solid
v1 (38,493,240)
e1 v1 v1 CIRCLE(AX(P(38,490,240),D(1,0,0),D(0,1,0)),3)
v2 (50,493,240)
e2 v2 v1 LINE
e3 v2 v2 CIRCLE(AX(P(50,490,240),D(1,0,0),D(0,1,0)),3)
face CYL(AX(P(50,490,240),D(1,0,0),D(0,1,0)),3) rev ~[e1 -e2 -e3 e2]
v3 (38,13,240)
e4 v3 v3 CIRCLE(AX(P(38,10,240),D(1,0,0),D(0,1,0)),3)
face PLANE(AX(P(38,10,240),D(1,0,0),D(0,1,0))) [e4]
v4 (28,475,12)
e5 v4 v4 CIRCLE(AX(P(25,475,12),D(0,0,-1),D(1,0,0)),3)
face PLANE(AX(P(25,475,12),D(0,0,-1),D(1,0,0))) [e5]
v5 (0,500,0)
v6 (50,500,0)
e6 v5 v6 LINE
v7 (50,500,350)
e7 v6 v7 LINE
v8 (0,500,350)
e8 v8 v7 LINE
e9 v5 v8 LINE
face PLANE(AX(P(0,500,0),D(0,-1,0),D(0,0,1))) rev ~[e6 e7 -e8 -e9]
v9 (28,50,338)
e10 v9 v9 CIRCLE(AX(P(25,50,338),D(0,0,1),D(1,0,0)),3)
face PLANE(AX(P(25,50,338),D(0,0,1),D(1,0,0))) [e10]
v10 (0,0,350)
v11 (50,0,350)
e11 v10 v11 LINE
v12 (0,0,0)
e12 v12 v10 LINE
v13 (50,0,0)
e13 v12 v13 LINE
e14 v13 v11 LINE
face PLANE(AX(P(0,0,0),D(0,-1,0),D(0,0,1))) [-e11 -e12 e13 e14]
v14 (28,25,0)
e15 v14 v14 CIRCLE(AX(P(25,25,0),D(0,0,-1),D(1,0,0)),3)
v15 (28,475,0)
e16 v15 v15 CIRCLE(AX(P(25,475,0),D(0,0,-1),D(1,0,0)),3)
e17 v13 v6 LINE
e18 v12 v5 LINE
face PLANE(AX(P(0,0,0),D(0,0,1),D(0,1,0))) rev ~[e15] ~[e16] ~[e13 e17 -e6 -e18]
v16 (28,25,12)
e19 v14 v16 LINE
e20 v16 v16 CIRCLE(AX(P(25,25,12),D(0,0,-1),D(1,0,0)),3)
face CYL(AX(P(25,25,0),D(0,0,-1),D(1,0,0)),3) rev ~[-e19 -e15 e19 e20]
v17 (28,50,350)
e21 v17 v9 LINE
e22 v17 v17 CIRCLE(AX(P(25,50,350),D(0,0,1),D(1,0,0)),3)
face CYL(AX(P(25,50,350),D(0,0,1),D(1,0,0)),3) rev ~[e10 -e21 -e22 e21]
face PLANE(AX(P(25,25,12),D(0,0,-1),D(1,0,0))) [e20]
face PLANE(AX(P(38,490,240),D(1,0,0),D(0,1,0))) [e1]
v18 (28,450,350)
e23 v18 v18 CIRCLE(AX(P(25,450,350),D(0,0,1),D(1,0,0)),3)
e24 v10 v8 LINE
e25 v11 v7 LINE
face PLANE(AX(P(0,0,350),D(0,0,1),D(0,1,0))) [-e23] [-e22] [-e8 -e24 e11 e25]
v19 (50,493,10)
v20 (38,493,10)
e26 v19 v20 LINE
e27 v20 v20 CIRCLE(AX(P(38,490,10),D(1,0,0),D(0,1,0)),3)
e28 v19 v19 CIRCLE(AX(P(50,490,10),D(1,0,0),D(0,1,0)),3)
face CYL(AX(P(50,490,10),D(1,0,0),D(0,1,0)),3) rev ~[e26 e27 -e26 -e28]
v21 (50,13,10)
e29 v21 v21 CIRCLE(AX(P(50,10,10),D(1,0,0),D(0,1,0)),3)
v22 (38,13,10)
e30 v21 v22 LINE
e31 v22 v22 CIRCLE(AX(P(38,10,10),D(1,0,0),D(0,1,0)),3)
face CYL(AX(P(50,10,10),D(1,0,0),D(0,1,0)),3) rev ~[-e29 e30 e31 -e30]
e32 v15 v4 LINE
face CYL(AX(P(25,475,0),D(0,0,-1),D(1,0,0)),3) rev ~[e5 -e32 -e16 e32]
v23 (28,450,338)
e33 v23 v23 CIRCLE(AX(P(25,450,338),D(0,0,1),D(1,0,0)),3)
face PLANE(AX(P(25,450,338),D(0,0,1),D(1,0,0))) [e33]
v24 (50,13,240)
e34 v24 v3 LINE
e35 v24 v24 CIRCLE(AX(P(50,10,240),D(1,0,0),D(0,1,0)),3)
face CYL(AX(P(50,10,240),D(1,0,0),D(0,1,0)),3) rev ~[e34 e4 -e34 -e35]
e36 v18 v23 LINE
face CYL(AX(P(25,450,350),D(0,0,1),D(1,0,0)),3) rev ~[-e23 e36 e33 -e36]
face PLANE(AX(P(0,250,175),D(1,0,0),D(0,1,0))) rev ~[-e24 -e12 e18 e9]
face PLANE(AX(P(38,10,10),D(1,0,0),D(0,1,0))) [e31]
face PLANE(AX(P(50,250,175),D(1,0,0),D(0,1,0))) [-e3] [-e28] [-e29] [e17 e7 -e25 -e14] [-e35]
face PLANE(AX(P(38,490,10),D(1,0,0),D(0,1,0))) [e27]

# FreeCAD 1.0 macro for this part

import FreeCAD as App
import Part
import Sketcher
from FreeCAD import Vector
Q = App.Units.Quantity


def add_polygon(sketch, points):
    """Adds a closed chain of lines whose ends are joined by coincident constraints."""
    first, n = sketch.GeometryCount, len(points)
    for a, b in zip(points, points[1:] + points[:1]):
        sketch.addGeometry(Part.LineSegment(App.Vector(*a, 0), App.Vector(*b, 0)), False)
    for i in range(n):
        sketch.addConstraint(Sketcher.Constraint("Coincident", first + i, 2, first + (i + 1) % n, 1))

doc = App.newDocument("Part")
params = doc.addObject("Spreadsheet::Sheet", "Params")
for row, (alias, value) in enumerate([
    ("sketch1_width", "500 mm"),
    ("sketch1_height", "350 mm"),
    ("pad1_length", "50 mm"),
    ("sketch2_diameter", "6 mm"),
    ("pocket1_length", "12 mm"),
    ("sketch3_diameter", "6 mm"),
    ("pocket2_length", "12 mm"),
    ("sketch4_diameter", "6 mm"),
    ("pocket3_length", "12 mm"),
    ("sketch5_diameter", "6 mm"),
    ("pocket4_length", "12 mm"),
    ("sketch6_diameter", "6 mm"),
    ("pocket5_length", "12 mm"),
], start=1):
    params.set(f"A{row}", alias)
    params.set(f"B{row}", "=" + value)
    params.setAlias(f"B{row}", alias)

body = doc.addObject("PartDesign::Body", "Body")

# Sketch on YZ plane
sketch1 = body.newObject("Sketcher::SketchObject", "Sketch")
sketch1.AttachmentSupport = (doc.getObject("YZ_Plane"), [""])
sketch1.MapMode = "FlatFace"
add_polygon(sketch1, [(0, 350), (0, 0), (500, 0), (500, 350)])  # lines 0-3
sketch1.addConstraint([
    Sketcher.Constraint("Vertical", 0),
    Sketcher.Constraint("Horizontal", 1),
    Sketcher.Constraint("Vertical", 2),
    Sketcher.Constraint("Horizontal", 3),
    Sketcher.Constraint("Coincident", 0, 2, -1, 1),
    Sketcher.Constraint("DistanceX", 1, 1, 1, 2, Q("500 mm")),
    Sketcher.Constraint("DistanceY", 0, 2, 0, 1, Q("350 mm")),
])
sketch1.setExpression("Constraints[9]", "Params.sketch1_width")
sketch1.setExpression("Constraints[10]", "Params.sketch1_height")
pad1 = body.newObject("PartDesign::Pad", "Pad")
pad1.Profile = sketch1
pad1.setExpression("Length", "Params.pad1_length")

# Sketch on XY plane
sketch2 = body.newObject("Sketcher::SketchObject", "Sketch001")
sketch2.AttachmentSupport = (doc.getObject("XY_Plane"), [""])
sketch2.MapMode = "FlatFace"
sketch2.AttachmentOffset = App.Placement(Vector(0, 0, 350), App.Rotation())
sketch2.addGeometry(Part.Circle(Vector(25, 50, 0), Vector(0, 0, 1), 3), False)
sketch2.addConstraint([
    Sketcher.Constraint("Diameter", 0, Q("6 mm")),
    Sketcher.Constraint("DistanceX", -1, 1, 0, 3, Q("25 mm")),
    Sketcher.Constraint("DistanceY", -1, 1, 0, 3, Q("50 mm")),
])
sketch2.setExpression("Constraints[0]", "Params.sketch2_diameter")
pocket1 = body.newObject("PartDesign::Pocket", "Pocket")
pocket1.Profile = sketch2
pocket1.setExpression("Length", "Params.pocket1_length")

# Sketch on XY plane
sketch3 = body.newObject("Sketcher::SketchObject", "Sketch002")
sketch3.AttachmentSupport = (doc.getObject("XY_Plane"), [""])
sketch3.MapMode = "FlatFace"
sketch3.AttachmentOffset = App.Placement(Vector(0, 0, 350), App.Rotation())
sketch3.addGeometry(Part.Circle(Vector(25, 450, 0), Vector(0, 0, 1), 3), False)
sketch3.addConstraint([
    Sketcher.Constraint("Diameter", 0, Q("6 mm")),
    Sketcher.Constraint("DistanceX", -1, 1, 0, 3, Q("25 mm")),
    Sketcher.Constraint("DistanceY", -1, 1, 0, 3, Q("450 mm")),
])
sketch3.setExpression("Constraints[0]", "Params.sketch3_diameter")
pocket2 = body.newObject("PartDesign::Pocket", "Pocket001")
pocket2.Profile = sketch3
pocket2.setExpression("Length", "Params.pocket2_length")

# Sketch on YZ plane
sketch4 = body.newObject("Sketcher::SketchObject", "Sketch003")
sketch4.AttachmentSupport = (doc.getObject("YZ_Plane"), [""])
sketch4.MapMode = "FlatFace"
sketch4.AttachmentOffset = App.Placement(Vector(0, 0, 50), App.Rotation())
sketch4.addGeometry([
    Part.Circle(Vector(10, 240, 0), Vector(0, 0, 1), 3),
    Part.Circle(Vector(10, 10, 0), Vector(0, 0, 1), 3),
], False)
sketch4.addConstraint([
    Sketcher.Constraint("Equal", 0, 1),
    Sketcher.Constraint("Vertical", 0, 3, 1, 3),
    Sketcher.Constraint("Diameter", 0, Q("6 mm")),
    Sketcher.Constraint("DistanceX", -1, 1, 0, 3, Q("10 mm")),
    Sketcher.Constraint("DistanceY", -1, 1, 0, 3, Q("240 mm")),
    Sketcher.Constraint("DistanceY", -1, 1, 1, 3, Q("10 mm")),
])
sketch4.setExpression("Constraints[2]", "Params.sketch4_diameter")
pocket3 = body.newObject("PartDesign::Pocket", "Pocket002")
pocket3.Profile = sketch4
pocket3.setExpression("Length", "Params.pocket3_length")

# Sketch on YZ plane
sketch5 = body.newObject("Sketcher::SketchObject", "Sketch004")
sketch5.AttachmentSupport = (doc.getObject("YZ_Plane"), [""])
sketch5.MapMode = "FlatFace"
sketch5.AttachmentOffset = App.Placement(Vector(0, 0, 50), App.Rotation())
sketch5.addGeometry([
    Part.Circle(Vector(490, 240, 0), Vector(0, 0, 1), 3),
    Part.Circle(Vector(490, 10, 0), Vector(0, 0, 1), 3),
], False)
sketch5.addConstraint([
    Sketcher.Constraint("Equal", 0, 1),
    Sketcher.Constraint("Vertical", 0, 3, 1, 3),
    Sketcher.Constraint("Diameter", 0, Q("6 mm")),
    Sketcher.Constraint("DistanceX", -1, 1, 0, 3, Q("490 mm")),
    Sketcher.Constraint("DistanceY", -1, 1, 0, 3, Q("240 mm")),
    Sketcher.Constraint("DistanceY", -1, 1, 1, 3, Q("10 mm")),
])
sketch5.setExpression("Constraints[2]", "Params.sketch5_diameter")
pocket4 = body.newObject("PartDesign::Pocket", "Pocket003")
pocket4.Profile = sketch5
pocket4.setExpression("Length", "Params.pocket4_length")

# Sketch on XY plane
sketch6 = body.newObject("Sketcher::SketchObject", "Sketch005")
sketch6.AttachmentSupport = (doc.getObject("XY_Plane"), [""])
sketch6.MapMode = "FlatFace"
sketch6.addGeometry([
    Part.Circle(Vector(25, 25, 0), Vector(0, 0, 1), 3),
    Part.Circle(Vector(25, 475, 0), Vector(0, 0, 1), 3),
], False)
sketch6.addConstraint([
    Sketcher.Constraint("Equal", 0, 1),
    Sketcher.Constraint("Vertical", 0, 3, 1, 3),
    Sketcher.Constraint("Diameter", 0, Q("6 mm")),
    Sketcher.Constraint("DistanceX", -1, 1, 0, 3, Q("25 mm")),
    Sketcher.Constraint("DistanceY", -1, 1, 0, 3, Q("25 mm")),
    Sketcher.Constraint("DistanceY", -1, 1, 1, 3, Q("475 mm")),
])
sketch6.setExpression("Constraints[2]", "Params.sketch6_diameter")
pocket5 = body.newObject("PartDesign::Pocket", "Pocket004")
pocket5.Profile = sketch6
pocket5.setExpression("Length", "Params.pocket5_length")
pocket5.Reversed = True

doc.recompute()
